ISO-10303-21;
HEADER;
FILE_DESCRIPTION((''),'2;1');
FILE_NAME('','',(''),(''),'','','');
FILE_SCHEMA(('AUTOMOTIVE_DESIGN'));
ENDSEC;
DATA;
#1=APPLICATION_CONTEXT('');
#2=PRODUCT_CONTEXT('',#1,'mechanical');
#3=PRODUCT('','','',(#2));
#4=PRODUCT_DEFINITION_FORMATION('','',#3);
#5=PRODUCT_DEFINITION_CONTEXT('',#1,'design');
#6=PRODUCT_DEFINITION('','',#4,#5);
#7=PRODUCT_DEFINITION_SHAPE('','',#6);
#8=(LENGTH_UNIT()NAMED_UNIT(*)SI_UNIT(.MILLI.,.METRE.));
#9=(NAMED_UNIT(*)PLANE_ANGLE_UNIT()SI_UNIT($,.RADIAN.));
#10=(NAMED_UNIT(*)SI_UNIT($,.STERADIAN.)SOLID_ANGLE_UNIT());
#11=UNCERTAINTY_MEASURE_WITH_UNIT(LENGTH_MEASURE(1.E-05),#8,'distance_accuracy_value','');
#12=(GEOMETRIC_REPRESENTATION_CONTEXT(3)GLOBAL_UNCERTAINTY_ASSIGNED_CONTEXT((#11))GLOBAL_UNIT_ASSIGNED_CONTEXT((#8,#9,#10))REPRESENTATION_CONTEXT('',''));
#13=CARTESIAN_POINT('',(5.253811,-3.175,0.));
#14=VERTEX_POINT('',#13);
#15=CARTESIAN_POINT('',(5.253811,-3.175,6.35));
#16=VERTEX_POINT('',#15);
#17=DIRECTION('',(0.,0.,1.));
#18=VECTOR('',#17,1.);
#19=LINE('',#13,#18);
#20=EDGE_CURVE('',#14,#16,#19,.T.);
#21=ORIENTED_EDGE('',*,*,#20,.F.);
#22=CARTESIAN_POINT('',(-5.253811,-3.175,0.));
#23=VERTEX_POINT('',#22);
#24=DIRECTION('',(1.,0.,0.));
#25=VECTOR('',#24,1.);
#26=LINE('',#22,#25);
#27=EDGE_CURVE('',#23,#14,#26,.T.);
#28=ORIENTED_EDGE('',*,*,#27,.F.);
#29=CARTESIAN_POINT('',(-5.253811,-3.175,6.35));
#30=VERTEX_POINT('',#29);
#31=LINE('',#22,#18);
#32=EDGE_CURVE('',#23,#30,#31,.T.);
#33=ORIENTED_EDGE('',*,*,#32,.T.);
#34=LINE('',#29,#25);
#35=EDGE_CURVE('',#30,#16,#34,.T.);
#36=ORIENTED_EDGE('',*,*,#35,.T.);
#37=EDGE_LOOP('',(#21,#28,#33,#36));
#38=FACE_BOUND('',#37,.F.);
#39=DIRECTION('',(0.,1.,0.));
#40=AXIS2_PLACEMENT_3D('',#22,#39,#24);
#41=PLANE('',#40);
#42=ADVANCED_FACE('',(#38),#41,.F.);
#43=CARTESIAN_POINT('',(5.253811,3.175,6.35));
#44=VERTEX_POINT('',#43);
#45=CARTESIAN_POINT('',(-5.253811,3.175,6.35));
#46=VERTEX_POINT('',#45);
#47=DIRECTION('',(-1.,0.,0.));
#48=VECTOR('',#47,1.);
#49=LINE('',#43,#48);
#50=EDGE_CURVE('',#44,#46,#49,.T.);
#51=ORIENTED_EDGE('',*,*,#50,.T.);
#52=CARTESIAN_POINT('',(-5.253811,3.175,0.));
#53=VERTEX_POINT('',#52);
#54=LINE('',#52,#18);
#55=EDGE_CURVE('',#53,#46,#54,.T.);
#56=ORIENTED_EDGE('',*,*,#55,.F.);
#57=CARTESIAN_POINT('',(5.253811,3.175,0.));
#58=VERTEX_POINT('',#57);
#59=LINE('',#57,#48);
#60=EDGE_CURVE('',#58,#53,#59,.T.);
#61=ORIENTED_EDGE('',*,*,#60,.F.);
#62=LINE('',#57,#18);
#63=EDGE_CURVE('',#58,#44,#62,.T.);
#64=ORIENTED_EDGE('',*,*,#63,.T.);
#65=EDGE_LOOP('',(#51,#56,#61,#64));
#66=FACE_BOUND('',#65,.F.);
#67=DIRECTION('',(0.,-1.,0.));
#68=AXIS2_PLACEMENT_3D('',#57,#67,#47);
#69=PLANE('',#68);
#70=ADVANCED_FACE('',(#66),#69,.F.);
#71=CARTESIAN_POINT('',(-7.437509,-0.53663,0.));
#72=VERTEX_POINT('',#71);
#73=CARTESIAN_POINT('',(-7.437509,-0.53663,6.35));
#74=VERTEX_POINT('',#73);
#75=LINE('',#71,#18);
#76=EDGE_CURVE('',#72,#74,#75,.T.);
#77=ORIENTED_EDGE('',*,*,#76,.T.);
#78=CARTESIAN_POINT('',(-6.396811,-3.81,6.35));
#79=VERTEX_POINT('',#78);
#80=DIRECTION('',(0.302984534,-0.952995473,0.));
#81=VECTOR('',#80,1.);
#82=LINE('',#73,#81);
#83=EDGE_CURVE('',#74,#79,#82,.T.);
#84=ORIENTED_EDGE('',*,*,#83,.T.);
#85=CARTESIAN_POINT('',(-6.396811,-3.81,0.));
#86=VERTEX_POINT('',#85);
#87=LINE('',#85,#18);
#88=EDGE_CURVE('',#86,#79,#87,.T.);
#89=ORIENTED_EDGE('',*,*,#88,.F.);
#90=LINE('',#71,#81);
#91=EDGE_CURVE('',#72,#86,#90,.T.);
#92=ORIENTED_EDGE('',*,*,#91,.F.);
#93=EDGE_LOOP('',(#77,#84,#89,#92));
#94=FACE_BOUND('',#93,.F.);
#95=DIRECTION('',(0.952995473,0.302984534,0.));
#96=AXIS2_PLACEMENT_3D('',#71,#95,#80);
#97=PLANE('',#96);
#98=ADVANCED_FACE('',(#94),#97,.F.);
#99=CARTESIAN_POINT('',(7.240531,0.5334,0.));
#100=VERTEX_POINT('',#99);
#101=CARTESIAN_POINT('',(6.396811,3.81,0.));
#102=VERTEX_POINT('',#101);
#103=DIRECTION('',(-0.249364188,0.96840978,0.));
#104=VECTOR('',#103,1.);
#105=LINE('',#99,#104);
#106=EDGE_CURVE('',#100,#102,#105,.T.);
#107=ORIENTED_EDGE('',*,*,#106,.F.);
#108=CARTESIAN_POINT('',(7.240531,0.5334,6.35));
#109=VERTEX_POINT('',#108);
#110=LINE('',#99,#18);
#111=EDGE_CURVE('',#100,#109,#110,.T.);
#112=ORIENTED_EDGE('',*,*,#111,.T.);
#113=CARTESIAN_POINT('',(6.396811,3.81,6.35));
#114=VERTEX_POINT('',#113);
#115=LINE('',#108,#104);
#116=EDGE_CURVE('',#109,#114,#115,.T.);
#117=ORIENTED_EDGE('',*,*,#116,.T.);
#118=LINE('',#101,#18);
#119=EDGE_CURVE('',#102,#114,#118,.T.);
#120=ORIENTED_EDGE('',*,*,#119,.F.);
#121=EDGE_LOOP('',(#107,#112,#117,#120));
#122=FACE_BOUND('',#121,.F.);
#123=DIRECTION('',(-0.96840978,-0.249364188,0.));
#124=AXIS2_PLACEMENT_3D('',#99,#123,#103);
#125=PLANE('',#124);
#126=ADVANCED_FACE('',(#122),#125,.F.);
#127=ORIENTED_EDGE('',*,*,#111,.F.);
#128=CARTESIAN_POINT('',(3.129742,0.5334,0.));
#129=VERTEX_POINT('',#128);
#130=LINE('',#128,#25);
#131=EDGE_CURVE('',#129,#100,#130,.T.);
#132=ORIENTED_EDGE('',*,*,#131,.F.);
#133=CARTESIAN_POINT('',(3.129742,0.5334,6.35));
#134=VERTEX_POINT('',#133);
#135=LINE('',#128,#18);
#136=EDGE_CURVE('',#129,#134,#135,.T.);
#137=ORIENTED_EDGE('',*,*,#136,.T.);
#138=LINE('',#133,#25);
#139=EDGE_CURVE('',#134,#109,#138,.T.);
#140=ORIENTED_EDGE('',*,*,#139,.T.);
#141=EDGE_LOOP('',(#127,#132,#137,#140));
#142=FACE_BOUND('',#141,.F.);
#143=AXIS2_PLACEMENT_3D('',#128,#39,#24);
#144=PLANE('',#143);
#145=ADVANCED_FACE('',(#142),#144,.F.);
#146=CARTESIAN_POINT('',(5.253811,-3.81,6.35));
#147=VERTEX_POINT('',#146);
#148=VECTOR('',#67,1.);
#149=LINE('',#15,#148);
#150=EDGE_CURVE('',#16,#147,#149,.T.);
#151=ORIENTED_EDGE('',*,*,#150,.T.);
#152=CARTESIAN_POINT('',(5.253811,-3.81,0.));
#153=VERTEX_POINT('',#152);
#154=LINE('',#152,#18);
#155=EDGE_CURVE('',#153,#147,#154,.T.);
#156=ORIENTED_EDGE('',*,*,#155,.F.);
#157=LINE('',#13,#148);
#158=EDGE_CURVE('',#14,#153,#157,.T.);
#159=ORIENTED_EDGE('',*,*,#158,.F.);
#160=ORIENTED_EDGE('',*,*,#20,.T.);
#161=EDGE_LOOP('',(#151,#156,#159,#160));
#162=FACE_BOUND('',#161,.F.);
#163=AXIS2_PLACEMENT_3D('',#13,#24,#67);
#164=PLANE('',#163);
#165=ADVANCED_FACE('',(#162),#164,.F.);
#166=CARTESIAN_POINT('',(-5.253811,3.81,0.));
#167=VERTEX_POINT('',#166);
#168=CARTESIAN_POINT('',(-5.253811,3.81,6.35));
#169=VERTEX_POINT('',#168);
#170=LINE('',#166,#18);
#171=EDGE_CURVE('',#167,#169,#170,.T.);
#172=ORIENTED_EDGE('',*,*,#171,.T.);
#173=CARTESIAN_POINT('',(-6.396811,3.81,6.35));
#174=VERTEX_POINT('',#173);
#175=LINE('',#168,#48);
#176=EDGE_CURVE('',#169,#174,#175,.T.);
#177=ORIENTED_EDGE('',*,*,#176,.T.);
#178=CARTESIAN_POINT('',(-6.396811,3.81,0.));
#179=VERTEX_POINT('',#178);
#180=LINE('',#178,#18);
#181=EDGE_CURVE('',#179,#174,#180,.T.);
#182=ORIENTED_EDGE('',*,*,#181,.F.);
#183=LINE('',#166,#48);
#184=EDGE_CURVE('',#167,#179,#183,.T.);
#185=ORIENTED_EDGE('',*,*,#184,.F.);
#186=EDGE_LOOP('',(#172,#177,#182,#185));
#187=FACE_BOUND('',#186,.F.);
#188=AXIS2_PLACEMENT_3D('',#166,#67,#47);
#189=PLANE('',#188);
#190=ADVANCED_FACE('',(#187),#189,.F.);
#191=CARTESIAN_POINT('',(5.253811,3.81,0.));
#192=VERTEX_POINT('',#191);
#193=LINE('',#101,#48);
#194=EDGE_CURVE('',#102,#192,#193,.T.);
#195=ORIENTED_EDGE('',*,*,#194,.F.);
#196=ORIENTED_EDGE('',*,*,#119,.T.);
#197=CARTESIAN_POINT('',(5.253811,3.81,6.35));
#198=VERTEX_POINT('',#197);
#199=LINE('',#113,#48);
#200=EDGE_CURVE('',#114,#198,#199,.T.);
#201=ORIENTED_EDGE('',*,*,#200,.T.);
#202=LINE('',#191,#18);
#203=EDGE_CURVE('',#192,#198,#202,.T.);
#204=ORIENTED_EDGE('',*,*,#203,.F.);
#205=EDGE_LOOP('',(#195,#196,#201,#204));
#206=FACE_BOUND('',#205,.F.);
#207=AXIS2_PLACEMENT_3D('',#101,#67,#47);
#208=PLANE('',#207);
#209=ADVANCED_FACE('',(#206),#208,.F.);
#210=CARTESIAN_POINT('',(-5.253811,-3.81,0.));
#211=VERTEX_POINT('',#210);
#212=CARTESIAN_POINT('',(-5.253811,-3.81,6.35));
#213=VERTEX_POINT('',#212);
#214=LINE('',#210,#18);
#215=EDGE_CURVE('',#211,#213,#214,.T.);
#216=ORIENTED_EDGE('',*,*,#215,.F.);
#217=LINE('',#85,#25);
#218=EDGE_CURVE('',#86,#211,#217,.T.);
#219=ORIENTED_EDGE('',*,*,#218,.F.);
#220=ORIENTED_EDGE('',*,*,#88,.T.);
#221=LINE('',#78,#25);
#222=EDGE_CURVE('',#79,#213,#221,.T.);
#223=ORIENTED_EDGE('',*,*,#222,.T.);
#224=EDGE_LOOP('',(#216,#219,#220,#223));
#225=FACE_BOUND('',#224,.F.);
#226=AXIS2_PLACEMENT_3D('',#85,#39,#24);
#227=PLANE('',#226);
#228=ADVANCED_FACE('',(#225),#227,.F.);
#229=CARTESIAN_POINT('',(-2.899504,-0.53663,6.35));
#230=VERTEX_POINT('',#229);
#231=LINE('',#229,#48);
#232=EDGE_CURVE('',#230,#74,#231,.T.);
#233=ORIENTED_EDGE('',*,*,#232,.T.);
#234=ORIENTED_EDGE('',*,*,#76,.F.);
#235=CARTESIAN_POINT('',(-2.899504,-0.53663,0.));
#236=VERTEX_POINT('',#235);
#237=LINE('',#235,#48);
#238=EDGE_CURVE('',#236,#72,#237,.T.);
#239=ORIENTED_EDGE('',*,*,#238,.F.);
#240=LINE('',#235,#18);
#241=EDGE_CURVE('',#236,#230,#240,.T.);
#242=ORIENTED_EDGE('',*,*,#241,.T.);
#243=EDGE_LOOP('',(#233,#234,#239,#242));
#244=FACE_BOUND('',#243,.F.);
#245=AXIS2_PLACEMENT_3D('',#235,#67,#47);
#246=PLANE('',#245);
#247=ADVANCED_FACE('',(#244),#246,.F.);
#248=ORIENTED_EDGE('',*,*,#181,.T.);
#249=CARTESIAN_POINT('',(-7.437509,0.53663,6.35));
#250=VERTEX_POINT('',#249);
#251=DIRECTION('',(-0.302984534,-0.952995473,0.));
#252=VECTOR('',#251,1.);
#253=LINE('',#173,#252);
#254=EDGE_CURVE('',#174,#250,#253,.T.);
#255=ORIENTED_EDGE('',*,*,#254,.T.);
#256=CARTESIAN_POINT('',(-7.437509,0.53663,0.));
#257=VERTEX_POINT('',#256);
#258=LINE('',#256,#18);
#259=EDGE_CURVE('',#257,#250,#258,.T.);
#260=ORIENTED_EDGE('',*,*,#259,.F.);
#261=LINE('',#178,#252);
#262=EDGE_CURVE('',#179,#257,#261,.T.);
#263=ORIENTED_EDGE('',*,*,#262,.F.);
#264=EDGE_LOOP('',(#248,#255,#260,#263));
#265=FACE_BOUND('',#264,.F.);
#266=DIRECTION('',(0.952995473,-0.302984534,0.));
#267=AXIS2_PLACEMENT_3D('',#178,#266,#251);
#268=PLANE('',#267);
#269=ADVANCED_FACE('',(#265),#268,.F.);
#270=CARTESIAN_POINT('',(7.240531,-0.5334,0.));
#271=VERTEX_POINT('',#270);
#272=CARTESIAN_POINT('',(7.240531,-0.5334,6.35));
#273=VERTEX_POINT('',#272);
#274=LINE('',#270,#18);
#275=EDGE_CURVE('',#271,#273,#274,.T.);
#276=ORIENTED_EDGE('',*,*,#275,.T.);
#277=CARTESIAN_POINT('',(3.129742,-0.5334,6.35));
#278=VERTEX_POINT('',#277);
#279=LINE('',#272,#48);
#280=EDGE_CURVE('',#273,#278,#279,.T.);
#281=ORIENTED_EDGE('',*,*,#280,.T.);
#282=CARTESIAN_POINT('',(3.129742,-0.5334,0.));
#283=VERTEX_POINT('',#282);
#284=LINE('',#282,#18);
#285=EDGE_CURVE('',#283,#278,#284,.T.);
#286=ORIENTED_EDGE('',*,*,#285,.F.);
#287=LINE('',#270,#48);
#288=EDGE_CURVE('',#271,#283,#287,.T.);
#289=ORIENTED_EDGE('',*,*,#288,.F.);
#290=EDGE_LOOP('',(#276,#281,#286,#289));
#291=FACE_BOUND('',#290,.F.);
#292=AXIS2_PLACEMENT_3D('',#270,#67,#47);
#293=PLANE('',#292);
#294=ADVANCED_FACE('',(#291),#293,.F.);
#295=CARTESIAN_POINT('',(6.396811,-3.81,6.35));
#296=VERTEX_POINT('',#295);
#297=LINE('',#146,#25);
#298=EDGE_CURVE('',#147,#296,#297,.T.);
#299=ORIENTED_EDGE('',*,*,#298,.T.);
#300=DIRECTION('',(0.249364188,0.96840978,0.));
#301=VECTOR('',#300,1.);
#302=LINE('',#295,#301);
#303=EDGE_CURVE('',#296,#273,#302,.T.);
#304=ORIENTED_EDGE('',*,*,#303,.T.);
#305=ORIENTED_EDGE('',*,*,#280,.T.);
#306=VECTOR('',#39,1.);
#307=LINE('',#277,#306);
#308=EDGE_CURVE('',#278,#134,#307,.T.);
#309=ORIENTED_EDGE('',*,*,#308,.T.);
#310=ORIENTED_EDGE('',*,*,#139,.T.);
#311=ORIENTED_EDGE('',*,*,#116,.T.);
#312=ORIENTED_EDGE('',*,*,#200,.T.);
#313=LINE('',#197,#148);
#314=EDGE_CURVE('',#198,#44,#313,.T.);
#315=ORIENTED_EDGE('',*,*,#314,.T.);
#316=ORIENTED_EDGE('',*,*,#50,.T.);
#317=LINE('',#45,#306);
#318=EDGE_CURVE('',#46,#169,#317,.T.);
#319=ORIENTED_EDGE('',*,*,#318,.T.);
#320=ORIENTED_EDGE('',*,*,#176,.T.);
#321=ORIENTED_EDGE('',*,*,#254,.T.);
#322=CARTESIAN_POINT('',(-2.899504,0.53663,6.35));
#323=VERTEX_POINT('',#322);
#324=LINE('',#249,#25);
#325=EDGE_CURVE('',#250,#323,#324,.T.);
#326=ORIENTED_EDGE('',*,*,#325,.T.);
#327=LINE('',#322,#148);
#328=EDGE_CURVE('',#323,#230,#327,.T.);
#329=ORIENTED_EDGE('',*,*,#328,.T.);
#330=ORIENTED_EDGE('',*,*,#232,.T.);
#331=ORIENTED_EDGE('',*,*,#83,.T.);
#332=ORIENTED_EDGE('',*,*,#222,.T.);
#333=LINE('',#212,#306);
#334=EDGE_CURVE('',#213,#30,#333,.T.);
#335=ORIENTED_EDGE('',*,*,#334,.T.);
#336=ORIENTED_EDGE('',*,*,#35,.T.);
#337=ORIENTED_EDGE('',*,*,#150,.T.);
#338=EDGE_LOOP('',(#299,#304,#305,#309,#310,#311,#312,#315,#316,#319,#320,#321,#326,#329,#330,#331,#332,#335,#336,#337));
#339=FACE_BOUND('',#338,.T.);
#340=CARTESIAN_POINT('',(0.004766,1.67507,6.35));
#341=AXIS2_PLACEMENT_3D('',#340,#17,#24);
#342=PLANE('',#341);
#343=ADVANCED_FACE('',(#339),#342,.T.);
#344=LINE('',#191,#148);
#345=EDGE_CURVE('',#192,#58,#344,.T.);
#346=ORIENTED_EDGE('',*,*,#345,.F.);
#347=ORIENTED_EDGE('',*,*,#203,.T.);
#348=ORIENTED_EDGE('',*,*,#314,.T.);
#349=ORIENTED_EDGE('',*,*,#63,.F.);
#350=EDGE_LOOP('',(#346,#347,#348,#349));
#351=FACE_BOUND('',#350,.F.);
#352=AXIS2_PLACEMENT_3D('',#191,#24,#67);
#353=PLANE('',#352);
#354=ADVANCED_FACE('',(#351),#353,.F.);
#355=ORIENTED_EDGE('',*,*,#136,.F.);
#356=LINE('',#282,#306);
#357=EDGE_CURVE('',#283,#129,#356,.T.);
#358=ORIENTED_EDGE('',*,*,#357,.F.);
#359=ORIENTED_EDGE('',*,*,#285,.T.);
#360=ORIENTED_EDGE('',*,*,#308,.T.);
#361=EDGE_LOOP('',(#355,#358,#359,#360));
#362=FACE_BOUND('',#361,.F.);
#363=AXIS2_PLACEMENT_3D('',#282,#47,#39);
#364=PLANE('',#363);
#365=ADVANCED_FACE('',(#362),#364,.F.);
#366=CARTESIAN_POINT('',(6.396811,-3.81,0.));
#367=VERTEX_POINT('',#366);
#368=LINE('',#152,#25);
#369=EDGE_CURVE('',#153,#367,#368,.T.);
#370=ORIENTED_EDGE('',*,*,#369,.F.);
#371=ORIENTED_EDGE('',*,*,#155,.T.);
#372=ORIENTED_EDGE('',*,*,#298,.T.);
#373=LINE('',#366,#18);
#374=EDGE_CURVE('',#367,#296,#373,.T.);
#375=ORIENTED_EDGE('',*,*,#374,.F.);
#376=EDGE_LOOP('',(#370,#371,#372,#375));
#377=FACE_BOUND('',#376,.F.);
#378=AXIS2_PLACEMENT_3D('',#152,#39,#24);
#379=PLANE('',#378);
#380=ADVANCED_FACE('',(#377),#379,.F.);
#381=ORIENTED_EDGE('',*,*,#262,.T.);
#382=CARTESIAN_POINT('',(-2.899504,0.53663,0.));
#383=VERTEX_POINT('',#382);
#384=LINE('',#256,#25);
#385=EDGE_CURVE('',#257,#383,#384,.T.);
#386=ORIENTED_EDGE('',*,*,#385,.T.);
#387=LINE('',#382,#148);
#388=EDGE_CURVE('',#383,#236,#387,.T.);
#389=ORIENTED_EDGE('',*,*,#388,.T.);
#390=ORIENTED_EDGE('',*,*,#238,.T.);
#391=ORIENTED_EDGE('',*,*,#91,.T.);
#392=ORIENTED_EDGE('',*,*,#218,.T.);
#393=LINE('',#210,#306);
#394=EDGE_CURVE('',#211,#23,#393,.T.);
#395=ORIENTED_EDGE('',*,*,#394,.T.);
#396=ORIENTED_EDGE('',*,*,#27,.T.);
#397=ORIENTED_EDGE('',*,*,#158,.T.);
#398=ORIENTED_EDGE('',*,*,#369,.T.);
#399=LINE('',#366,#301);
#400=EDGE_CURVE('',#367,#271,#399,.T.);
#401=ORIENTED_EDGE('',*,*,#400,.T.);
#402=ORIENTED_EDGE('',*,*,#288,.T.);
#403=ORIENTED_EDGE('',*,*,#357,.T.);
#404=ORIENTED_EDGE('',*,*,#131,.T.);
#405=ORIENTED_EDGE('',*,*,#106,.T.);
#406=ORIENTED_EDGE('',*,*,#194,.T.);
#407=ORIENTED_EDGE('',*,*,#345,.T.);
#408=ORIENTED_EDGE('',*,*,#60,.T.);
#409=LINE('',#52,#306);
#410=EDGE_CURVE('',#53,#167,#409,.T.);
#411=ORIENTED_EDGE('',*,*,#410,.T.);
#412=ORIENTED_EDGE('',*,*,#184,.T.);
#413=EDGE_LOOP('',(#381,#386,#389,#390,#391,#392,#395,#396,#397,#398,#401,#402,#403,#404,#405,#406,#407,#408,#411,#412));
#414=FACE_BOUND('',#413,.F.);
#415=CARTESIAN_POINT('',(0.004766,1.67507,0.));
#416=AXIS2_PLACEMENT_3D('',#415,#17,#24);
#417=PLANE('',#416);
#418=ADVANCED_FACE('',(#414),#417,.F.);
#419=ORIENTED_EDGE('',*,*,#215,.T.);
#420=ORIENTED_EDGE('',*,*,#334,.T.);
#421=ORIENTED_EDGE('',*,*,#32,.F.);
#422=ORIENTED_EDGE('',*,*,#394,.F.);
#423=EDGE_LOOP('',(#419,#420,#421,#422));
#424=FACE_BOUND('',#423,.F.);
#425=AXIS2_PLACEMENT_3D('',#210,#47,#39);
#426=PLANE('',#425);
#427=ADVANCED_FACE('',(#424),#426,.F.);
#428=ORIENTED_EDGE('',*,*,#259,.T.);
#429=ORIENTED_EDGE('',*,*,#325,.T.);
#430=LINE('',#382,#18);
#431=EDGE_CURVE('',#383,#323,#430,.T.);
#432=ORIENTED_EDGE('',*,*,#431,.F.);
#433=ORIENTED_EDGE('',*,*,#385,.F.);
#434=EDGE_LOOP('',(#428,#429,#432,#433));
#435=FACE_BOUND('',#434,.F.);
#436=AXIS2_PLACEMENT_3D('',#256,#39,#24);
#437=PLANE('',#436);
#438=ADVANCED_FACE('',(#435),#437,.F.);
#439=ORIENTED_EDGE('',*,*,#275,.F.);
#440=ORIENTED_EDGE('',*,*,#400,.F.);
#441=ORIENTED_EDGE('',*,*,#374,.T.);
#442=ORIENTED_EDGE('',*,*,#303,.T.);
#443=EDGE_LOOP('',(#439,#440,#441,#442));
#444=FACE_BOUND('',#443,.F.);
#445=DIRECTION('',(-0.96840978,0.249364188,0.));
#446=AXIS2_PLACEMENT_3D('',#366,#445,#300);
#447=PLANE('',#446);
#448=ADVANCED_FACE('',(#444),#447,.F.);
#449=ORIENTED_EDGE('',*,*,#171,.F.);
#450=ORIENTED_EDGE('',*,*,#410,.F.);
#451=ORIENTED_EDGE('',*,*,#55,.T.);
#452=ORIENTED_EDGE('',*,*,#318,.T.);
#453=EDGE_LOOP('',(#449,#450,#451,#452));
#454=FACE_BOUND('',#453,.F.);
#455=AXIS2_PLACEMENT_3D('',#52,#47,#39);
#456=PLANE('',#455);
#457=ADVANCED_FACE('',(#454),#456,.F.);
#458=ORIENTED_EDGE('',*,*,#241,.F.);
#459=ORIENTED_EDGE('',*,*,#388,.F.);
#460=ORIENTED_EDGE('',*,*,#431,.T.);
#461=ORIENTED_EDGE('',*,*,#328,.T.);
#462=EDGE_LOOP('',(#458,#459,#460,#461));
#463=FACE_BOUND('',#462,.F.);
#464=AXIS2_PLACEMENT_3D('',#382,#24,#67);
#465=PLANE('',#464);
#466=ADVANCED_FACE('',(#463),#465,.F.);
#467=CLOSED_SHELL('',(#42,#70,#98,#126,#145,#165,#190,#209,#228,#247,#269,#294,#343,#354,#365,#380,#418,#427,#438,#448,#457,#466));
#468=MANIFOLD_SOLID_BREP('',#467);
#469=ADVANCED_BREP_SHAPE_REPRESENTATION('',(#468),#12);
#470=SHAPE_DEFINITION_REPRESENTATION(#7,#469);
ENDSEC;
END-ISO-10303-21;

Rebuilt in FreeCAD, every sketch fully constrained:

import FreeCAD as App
import Part
import Sketcher
from FreeCAD import Vector
Q = App.Units.Quantity


def add_polygon(sketch, points):
    """Adds a closed chain of lines whose ends are joined by coincident constraints."""
    first, n = sketch.GeometryCount, len(points)
    for a, b in zip(points, points[1:] + points[:1]):
        sketch.addGeometry(Part.LineSegment(App.Vector(*a, 0), App.Vector(*b, 0)), False)
    for i in range(n):
        sketch.addConstraint(Sketcher.Constraint("Coincident", first + i, 2, first + (i + 1) % n, 1))

doc = App.newDocument("Part")
body = doc.addObject("PartDesign::Body", "Body")

# Sketch on XY plane
sketch1 = body.newObject("Sketcher::SketchObject", "Sketch")
sketch1.AttachmentSupport = (doc.getObject("XY_Plane"), [""])
sketch1.MapMode = "FlatFace"
add_polygon(sketch1, [(-2.9, 0.5), (-2.9, -0.5), (-7.4, -0.5), (-6.4, -3.8), (-5.3, -3.8), (-5.3, -3.2), (5.3, -3.2), (5.3, -3.8), (6.4, -3.8), (7.2, -0.5), (3.1, -0.5), (3.1, 0.5), (7.2, 0.5), (6.4, 3.8), (5.3, 3.8), (5.3, 3.2), (-5.3, 3.2), (-5.3, 3.8), (-6.4, 3.8), (-7.4, 0.5)])  # lines 0-19
sketch1.addConstraint([
    Sketcher.Constraint("Vertical", 0),
    Sketcher.Constraint("Horizontal", 1),
    Sketcher.Constraint("Horizontal", 3),
    Sketcher.Constraint("Vertical", 4),
    Sketcher.Constraint("Horizontal", 5),
    Sketcher.Constraint("Vertical", 6),
    Sketcher.Constraint("Horizontal", 7),
    Sketcher.Constraint("Horizontal", 9),
    Sketcher.Constraint("Vertical", 10),
    Sketcher.Constraint("Horizontal", 11),
    Sketcher.Constraint("Horizontal", 13),
    Sketcher.Constraint("Vertical", 14),
    Sketcher.Constraint("Horizontal", 15),
    Sketcher.Constraint("Vertical", 16),
    Sketcher.Constraint("Horizontal", 17),
    Sketcher.Constraint("Horizontal", 19),
    Sketcher.Constraint("Symmetric", 2, 2, 12, 2, -1, 1),
    Sketcher.Constraint("Symmetric", 4, 2, 14, 2, -1, 1),
    Sketcher.Constraint("Symmetric", 6, 2, 16, 2, -1, 1),
    Sketcher.Constraint("Symmetric", 3, 2, 6, 2, -2),
    Sketcher.Constraint("Symmetric", 8, 2, 11, 2, -1),
    Sketcher.Constraint("Symmetric", 1, 2, 18, 2, -1),
    Sketcher.Constraint("Vertical", 7, 2, 12, 2),
    Sketcher.Constraint("Vertical", 2, 2, 17, 2),
    Sketcher.Constraint("DistanceY", 3, 2, 16, 2, Q("0.3 in")),
    Sketcher.Constraint("DistanceX", 3, 1, 3, 2, Q("0.045 in")),
    Sketcher.Constraint("DistanceY", 4, 1, 4, 2, Q("0.025 in")),
    Sketcher.Constraint("DistanceY", 10, 1, 10, 2, Q("0.042 in")),
    Sketcher.Constraint("DistanceX", 9, 2, 9, 1, 4.110789),
    Sketcher.Constraint("DistanceY", 0, 2, 0, 1, 1.07326),
    Sketcher.Constraint("DistanceX", 1, 2, 2, 2, 1.040698),
    Sketcher.Constraint("DistanceX", 1, 2, 1, 1, 4.538005),
    Sketcher.Constraint("DistanceX", 5, 1, 5, 2, 10.507622),
    Sketcher.Constraint("DistanceX", -1, 1, 8, 2, 7.240531),
])
pad1 = body.newObject("PartDesign::Pad", "Pad")
pad1.Profile = sketch1
pad1.Length = Q("0.25 in")

doc.recompute()
